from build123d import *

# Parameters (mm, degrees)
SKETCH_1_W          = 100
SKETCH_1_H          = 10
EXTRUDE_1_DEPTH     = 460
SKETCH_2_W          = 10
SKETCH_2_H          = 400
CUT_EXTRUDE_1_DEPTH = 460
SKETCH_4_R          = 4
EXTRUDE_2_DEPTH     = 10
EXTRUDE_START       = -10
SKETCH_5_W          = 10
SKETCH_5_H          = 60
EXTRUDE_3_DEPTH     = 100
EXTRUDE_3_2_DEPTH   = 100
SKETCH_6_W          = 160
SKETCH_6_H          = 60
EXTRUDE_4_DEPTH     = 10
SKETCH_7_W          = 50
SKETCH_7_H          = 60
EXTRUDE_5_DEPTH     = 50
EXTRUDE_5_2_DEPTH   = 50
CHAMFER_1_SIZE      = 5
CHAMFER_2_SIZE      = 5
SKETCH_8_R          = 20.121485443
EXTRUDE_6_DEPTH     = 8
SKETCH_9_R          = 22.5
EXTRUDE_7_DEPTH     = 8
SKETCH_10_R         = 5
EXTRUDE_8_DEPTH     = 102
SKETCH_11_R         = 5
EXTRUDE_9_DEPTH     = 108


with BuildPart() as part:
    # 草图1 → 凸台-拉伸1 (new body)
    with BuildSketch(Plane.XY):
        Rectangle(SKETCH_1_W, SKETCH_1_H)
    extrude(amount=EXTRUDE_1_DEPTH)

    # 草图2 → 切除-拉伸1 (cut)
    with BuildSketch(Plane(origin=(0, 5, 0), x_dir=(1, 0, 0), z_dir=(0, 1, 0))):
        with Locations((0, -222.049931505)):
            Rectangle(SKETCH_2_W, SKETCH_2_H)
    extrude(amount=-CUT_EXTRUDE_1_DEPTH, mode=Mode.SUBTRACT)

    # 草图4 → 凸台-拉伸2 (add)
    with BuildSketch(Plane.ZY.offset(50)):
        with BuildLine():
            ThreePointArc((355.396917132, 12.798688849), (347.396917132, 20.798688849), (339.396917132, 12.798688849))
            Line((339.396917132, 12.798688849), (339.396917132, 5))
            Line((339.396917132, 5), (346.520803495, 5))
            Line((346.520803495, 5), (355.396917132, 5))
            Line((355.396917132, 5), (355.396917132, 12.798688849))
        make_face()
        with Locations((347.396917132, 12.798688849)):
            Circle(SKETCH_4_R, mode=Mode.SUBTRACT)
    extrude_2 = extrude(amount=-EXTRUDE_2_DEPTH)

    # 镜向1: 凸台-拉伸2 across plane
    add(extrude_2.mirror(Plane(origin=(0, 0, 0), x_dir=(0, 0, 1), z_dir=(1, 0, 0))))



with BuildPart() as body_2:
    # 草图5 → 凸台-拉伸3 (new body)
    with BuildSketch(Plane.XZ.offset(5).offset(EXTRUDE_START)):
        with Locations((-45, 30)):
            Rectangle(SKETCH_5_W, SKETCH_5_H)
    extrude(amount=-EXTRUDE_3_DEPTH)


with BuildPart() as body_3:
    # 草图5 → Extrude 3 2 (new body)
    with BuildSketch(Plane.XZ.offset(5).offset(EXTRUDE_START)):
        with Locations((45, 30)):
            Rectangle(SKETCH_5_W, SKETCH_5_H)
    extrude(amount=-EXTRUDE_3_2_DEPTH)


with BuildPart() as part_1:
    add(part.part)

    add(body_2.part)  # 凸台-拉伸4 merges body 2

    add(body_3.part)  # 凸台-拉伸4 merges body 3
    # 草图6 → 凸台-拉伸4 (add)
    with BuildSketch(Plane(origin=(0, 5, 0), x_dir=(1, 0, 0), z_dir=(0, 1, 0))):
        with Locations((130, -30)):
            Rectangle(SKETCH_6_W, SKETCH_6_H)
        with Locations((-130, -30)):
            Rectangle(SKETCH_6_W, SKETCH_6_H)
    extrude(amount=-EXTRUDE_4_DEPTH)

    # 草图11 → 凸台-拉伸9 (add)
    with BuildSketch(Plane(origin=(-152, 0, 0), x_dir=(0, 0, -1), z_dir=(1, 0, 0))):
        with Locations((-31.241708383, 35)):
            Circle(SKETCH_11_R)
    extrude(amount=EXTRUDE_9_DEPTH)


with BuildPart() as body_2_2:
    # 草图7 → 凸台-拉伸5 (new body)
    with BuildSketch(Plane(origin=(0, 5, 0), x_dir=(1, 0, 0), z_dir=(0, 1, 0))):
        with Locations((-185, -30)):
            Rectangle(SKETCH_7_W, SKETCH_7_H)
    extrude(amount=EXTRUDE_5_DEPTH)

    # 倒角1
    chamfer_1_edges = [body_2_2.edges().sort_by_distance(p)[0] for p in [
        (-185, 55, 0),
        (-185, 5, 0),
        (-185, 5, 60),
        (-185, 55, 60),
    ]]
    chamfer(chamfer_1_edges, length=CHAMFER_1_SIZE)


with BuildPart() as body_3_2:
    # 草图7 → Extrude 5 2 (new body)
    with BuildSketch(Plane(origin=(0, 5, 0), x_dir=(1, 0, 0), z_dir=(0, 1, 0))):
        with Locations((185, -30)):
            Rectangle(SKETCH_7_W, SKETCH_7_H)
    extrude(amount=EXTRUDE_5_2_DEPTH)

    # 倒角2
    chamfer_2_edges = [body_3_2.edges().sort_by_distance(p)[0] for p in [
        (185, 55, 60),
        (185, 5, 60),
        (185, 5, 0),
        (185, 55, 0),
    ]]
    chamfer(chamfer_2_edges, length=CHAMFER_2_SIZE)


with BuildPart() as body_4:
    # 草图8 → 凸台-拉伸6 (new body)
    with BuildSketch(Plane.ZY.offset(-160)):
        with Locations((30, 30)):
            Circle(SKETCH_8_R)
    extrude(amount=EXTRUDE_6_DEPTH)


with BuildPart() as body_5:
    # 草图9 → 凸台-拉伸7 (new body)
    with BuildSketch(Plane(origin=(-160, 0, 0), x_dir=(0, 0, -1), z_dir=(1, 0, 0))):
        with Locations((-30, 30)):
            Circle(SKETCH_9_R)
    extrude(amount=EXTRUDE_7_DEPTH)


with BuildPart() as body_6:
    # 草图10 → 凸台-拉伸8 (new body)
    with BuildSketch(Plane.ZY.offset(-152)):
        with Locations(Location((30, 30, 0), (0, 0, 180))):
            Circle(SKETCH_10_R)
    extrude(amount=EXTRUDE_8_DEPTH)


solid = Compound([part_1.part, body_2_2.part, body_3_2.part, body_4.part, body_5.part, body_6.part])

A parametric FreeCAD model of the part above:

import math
import FreeCAD as App
import Part
import Sketcher
from FreeCAD import Vector


def edges_at(feature, points):
    """Names of the edges that pass closest to the given points."""
    edges = feature.Shape.Edges
    near = lambda p: min(range(len(edges)), key=lambda i: edges[i].distToShape(Part.Vertex(*p))[0])
    return sorted({f"Edge{near(p) + 1}" for p in points})

doc = App.newDocument("Part")
body = doc.addObject("PartDesign::Body", "Body")

sketch1 = body.newObject("Sketcher::SketchObject", "Sketch")
sketch1.AttachmentSupport = (doc.getObject("XY_Plane"), [""])
sketch1.MapMode = "FlatFace"
sketch1.addGeometry([
    Part.LineSegment(Vector(-50, 5, 0), Vector(-50, -5, 0)),
    Part.LineSegment(Vector(-50, -5, 0), Vector(50, -5, 0)),
    Part.LineSegment(Vector(50, -5, 0), Vector(50, 5, 0)),
    Part.LineSegment(Vector(50, 5, 0), Vector(-50, 5, 0)),
], False)
sketch1.addConstraint([
    Sketcher.Constraint("Coincident", 0, 2, 1, 1),
    Sketcher.Constraint("Coincident", 1, 2, 2, 1),
    Sketcher.Constraint("Coincident", 2, 2, 3, 1),
    Sketcher.Constraint("Coincident", 3, 2, 0, 1),
    Sketcher.Constraint("Vertical", 0),
    Sketcher.Constraint("Horizontal", 1),
    Sketcher.Constraint("Vertical", 2),
    Sketcher.Constraint("Horizontal", 3),
    Sketcher.Constraint("Symmetric", 0, 2, 2, 2, -1, 1),
    Sketcher.Constraint("DistanceX", 1, 1, 1, 2, 100.0),
    Sketcher.Constraint("DistanceY", 0, 2, 0, 1, 10.0),
])
pad1 = body.newObject("PartDesign::Pad", "Pad")
pad1.Profile = sketch1
pad1.Length = 460

sketch2 = body.newObject("Sketcher::SketchObject", "Sketch001")
sketch2.AttachmentSupport = (doc.getObject("XZ_Plane"), [""])
sketch2.MapMode = "FlatFace"
sketch2.AttachmentOffset = App.Placement(Vector(0, 0, -5), App.Rotation())
sketch2.addGeometry([
    Part.LineSegment(Vector(-5, 22.049932, 0), Vector(-5, 422.049932, 0)),
    Part.LineSegment(Vector(-5, 422.049932, 0), Vector(5, 422.049932, 0)),
    Part.LineSegment(Vector(5, 422.049932, 0), Vector(5, 22.049932, 0)),
    Part.LineSegment(Vector(5, 22.049932, 0), Vector(-5, 22.049932, 0)),
], False)
sketch2.addConstraint([
    Sketcher.Constraint("Coincident", 0, 2, 1, 1),
    Sketcher.Constraint("Coincident", 1, 2, 2, 1),
    Sketcher.Constraint("Coincident", 2, 2, 3, 1),
    Sketcher.Constraint("Coincident", 3, 2, 0, 1),
    Sketcher.Constraint("Vertical", 0),
    Sketcher.Constraint("Horizontal", 1),
    Sketcher.Constraint("Vertical", 2),
    Sketcher.Constraint("Horizontal", 3),
    Sketcher.Constraint("DistanceX", 1, 1, 1, 2, 10.0),
    Sketcher.Constraint("DistanceY", 0, 1, 0, 2, 400.0),
    Sketcher.Constraint("DistanceX", 0, 2, -1, 1, 5.0),
    Sketcher.Constraint("DistanceY", -1, 1, 0, 2, 422.049932),
])
pocket1 = body.newObject("PartDesign::Pocket", "Pocket")
pocket1.Profile = sketch2
pocket1.Length = 460
pocket1.Reversed = True

sketch3 = body.newObject("Sketcher::SketchObject", "Sketch002")
sketch3.AttachmentSupport = (doc.getObject("YZ_Plane"), [""])
sketch3.MapMode = "FlatFace"
sketch3.AttachmentOffset = App.Placement(Vector(0, 0, -50), App.Rotation())
sketch3.addGeometry([
    Part.ArcOfCircle(Part.Circle(Vector(12.798689, 347.396917, 0), Vector(0, 0, 1), 8), math.radians(-90), math.radians(90)),
    Part.LineSegment(Vector(12.798689, 339.396917, 0), Vector(5, 339.396917, 0)),
    Part.LineSegment(Vector(5, 339.396917, 0), Vector(5, 355.396917, 0)),
    Part.LineSegment(Vector(5, 355.396917, 0), Vector(12.798689, 355.396917, 0)),
    Part.Circle(Vector(12.798689, 347.396917, 0), Vector(0, 0, 1), 4),
], False)
sketch3.addConstraint([
    Sketcher.Constraint("Tangent", 0, 1, 1, 1),
    Sketcher.Constraint("Coincident", 1, 2, 2, 1),
    Sketcher.Constraint("Coincident", 2, 2, 3, 1),
    Sketcher.Constraint("Tangent", 3, 2, 0, 2),
    Sketcher.Constraint("Horizontal", 1),
    Sketcher.Constraint("Vertical", 2),
    Sketcher.Constraint("Horizontal", 3),
    Sketcher.Constraint("Coincident", 4, 3, 0, 3),
    Sketcher.Constraint("Diameter", 4, 8.0),
    Sketcher.Constraint("Radius", 0, 8.0),
    Sketcher.Constraint("DistanceX", -1, 1, 1, 2, 5.0),
    Sketcher.Constraint("DistanceX", 1, 2, 1, 1, 7.798689),
    Sketcher.Constraint("DistanceY", -1, 1, 0, 3, 347.396917),
])
pad2 = body.newObject("PartDesign::Pad", "Pad001")
pad2.Profile = sketch3
pad2.Length = 10
doc.recompute()

mirrored = body.newObject("PartDesign::Mirrored", "Mirrored")
mirrored.Originals = [pad2]
mirrored.MirrorPlane = (doc.getObject("YZ_Plane"), [""])
body.Tip = mirrored
body2 = doc.addObject("PartDesign::Body", "Body001")

sketch4 = body2.newObject("Sketcher::SketchObject", "Sketch003")
sketch4.AttachmentSupport = (doc.getObject("XZ_Plane001"), [""])
sketch4.MapMode = "FlatFace"
sketch4.AttachmentOffset = App.Placement(Vector(0, 0, -5), App.Rotation())
sketch4.addGeometry([
    Part.LineSegment(Vector(-50, 60, 0), Vector(-50, 0, 0)),
    Part.LineSegment(Vector(-50, 0, 0), Vector(-40, 0, 0)),
    Part.LineSegment(Vector(-40, 0, 0), Vector(-40, 60, 0)),
    Part.LineSegment(Vector(-40, 60, 0), Vector(-50, 60, 0)),
], False)
sketch4.addConstraint([
    Sketcher.Constraint("Coincident", 0, 2, 1, 1),
    Sketcher.Constraint("Coincident", 1, 2, 2, 1),
    Sketcher.Constraint("Coincident", 2, 2, 3, 1),
    Sketcher.Constraint("Coincident", 3, 2, 0, 1),
    Sketcher.Constraint("Vertical", 0),
    Sketcher.Constraint("Horizontal", 1),
    Sketcher.Constraint("Vertical", 2),
    Sketcher.Constraint("Horizontal", 3),
    Sketcher.Constraint("PointOnObject", 0, 2, -1),
    Sketcher.Constraint("DistanceX", 1, 1, 1, 2, 10.0),
    Sketcher.Constraint("DistanceY", 0, 2, 0, 1, 60.0),
    Sketcher.Constraint("DistanceX", 0, 2, -1, 1, 50.0),
])
pad3 = body2.newObject("PartDesign::Pad", "Pad002")
pad3.Profile = sketch4
pad3.Length = 100
pad3.Reversed = True
body3 = doc.addObject("PartDesign::Body", "Body002")

sketch5 = body3.newObject("Sketcher::SketchObject", "Sketch004")
sketch5.AttachmentSupport = (doc.getObject("XZ_Plane002"), [""])
sketch5.MapMode = "FlatFace"
sketch5.AttachmentOffset = App.Placement(Vector(0, 0, -5), App.Rotation())
sketch5.addGeometry([
    Part.LineSegment(Vector(40, 60, 0), Vector(40, 0, 0)),
    Part.LineSegment(Vector(40, 0, 0), Vector(50, 0, 0)),
    Part.LineSegment(Vector(50, 0, 0), Vector(50, 60, 0)),
    Part.LineSegment(Vector(50, 60, 0), Vector(40, 60, 0)),
], False)
sketch5.addConstraint([
    Sketcher.Constraint("Coincident", 0, 2, 1, 1),
    Sketcher.Constraint("Coincident", 1, 2, 2, 1),
    Sketcher.Constraint("Coincident", 2, 2, 3, 1),
    Sketcher.Constraint("Coincident", 3, 2, 0, 1),
    Sketcher.Constraint("Vertical", 0),
    Sketcher.Constraint("Horizontal", 1),
    Sketcher.Constraint("Vertical", 2),
    Sketcher.Constraint("Horizontal", 3),
    Sketcher.Constraint("PointOnObject", 0, 2, -1),
    Sketcher.Constraint("DistanceX", 1, 1, 1, 2, 10.0),
    Sketcher.Constraint("DistanceY", 0, 2, 0, 1, 60.0),
    Sketcher.Constraint("DistanceX", -1, 1, 0, 2, 40.0),
])
pad4 = body3.newObject("PartDesign::Pad", "Pad003")
pad4.Profile = sketch5
pad4.Length = 100
pad4.Reversed = True
doc.recompute()

boolean = body.newObject("PartDesign::Boolean", "Boolean")
boolean.Type = "Fuse"
boolean.addObjects([body2])
doc.recompute()

boolean2 = body.newObject("PartDesign::Boolean", "Boolean001")
boolean2.Type = "Fuse"
boolean2.addObjects([body3])

sketch6 = body.newObject("Sketcher::SketchObject", "Sketch005")
sketch6.AttachmentSupport = (doc.getObject("XZ_Plane"), [""])
sketch6.MapMode = "FlatFace"
sketch6.AttachmentOffset = App.Placement(Vector(0, 0, -5), App.Rotation())
sketch6.addGeometry([
    Part.LineSegment(Vector(50, 0, 0), Vector(50, 60, 0)),
    Part.LineSegment(Vector(50, 60, 0), Vector(210, 60, 0)),
    Part.LineSegment(Vector(210, 60, 0), Vector(210, 0, 0)),
    Part.LineSegment(Vector(210, 0, 0), Vector(50, 0, 0)),
    Part.LineSegment(Vector(-210, 0, 0), Vector(-210, 60, 0)),
    Part.LineSegment(Vector(-210, 60, 0), Vector(-50, 60, 0)),
    Part.LineSegment(Vector(-50, 60, 0), Vector(-50, 0, 0)),
    Part.LineSegment(Vector(-50, 0, 0), Vector(-210, 0, 0)),
], False)
sketch6.addConstraint([
    Sketcher.Constraint("Coincident", 0, 2, 1, 1),
    Sketcher.Constraint("Coincident", 1, 2, 2, 1),
    Sketcher.Constraint("Coincident", 2, 2, 3, 1),
    Sketcher.Constraint("Coincident", 3, 2, 0, 1),
    Sketcher.Constraint("Coincident", 4, 2, 5, 1),
    Sketcher.Constraint("Coincident", 5, 2, 6, 1),
    Sketcher.Constraint("Coincident", 6, 2, 7, 1),
    Sketcher.Constraint("Coincident", 7, 2, 4, 1),
    Sketcher.Constraint("Vertical", 0),
    Sketcher.Constraint("Horizontal", 1),
    Sketcher.Constraint("Vertical", 2),
    Sketcher.Constraint("Horizontal", 3),
    Sketcher.Constraint("Vertical", 4),
    Sketcher.Constraint("Horizontal", 5),
    Sketcher.Constraint("Vertical", 6),
    Sketcher.Constraint("Horizontal", 7),
    Sketcher.Constraint("Symmetric", 3, 2, 6, 2, -1, 1),
    Sketcher.Constraint("Symmetric", 1, 2, 4, 2, -2),
    Sketcher.Constraint("PointOnObject", 2, 2, -1),
    Sketcher.Constraint("DistanceX", 1, 1, 1, 2, 160.0),
    Sketcher.Constraint("DistanceY", 0, 1, 0, 2, 60.0),
    Sketcher.Constraint("DistanceX", -1, 1, 0, 2, 50.0),
])
pad5 = body.newObject("PartDesign::Pad", "Pad004")
pad5.Profile = sketch6
pad5.Length = 10

sketch7 = body.newObject("Sketcher::SketchObject", "Sketch006")
sketch7.AttachmentSupport = (doc.getObject("YZ_Plane"), [""])
sketch7.MapMode = "FlatFace"
sketch7.AttachmentOffset = App.Placement(Vector(0, 0, -152), App.Rotation())
sketch7.addGeometry(Part.Circle(Vector(35, 31.241708, 0), Vector(0, 0, 1), 5), False)
sketch7.addConstraint([
    Sketcher.Constraint("Diameter", 0, 10.0),
    Sketcher.Constraint("DistanceX", -1, 1, 0, 3, 35.0),
    Sketcher.Constraint("DistanceY", -1, 1, 0, 3, 31.241708),
])
pad6 = body.newObject("PartDesign::Pad", "Pad005")
pad6.Profile = sketch7
pad6.Length = 108
body4 = doc.addObject("PartDesign::Body", "Body003")

sketch8 = body4.newObject("Sketcher::SketchObject", "Sketch007")
sketch8.AttachmentSupport = (doc.getObject("XZ_Plane003"), [""])
sketch8.MapMode = "FlatFace"
sketch8.AttachmentOffset = App.Placement(Vector(0, 0, -5), App.Rotation())
sketch8.addGeometry([
    Part.LineSegment(Vector(-210, 0, 0), Vector(-210, 60, 0)),
    Part.LineSegment(Vector(-210, 60, 0), Vector(-160, 60, 0)),
    Part.LineSegment(Vector(-160, 60, 0), Vector(-160, 0, 0)),
    Part.LineSegment(Vector(-160, 0, 0), Vector(-210, 0, 0)),
], False)
sketch8.addConstraint([
    Sketcher.Constraint("Coincident", 0, 2, 1, 1),
    Sketcher.Constraint("Coincident", 1, 2, 2, 1),
    Sketcher.Constraint("Coincident", 2, 2, 3, 1),
    Sketcher.Constraint("Coincident", 3, 2, 0, 1),
    Sketcher.Constraint("Vertical", 0),
    Sketcher.Constraint("Horizontal", 1),
    Sketcher.Constraint("Vertical", 2),
    Sketcher.Constraint("Horizontal", 3),
    Sketcher.Constraint("PointOnObject", 2, 2, -1),
    Sketcher.Constraint("DistanceX", 1, 1, 1, 2, 50.0),
    Sketcher.Constraint("DistanceY", 0, 1, 0, 2, 60.0),
    Sketcher.Constraint("DistanceX", 0, 2, -1, 1, 210.0),
])
pad7 = body4.newObject("PartDesign::Pad", "Pad006")
pad7.Profile = sketch8
pad7.Length = 50
pad7.Reversed = True
doc.recompute()

chamfer = body4.newObject("PartDesign::Chamfer", "Chamfer")
chamfer.Base = (pad7, edges_at(pad7, [
    (-185, 55, 0),
    (-185, 5, 0),
    (-185, 5, 60),
    (-185, 55, 60),
]))
chamfer.Size = 5
body5 = doc.addObject("PartDesign::Body", "Body004")

sketch9 = body5.newObject("Sketcher::SketchObject", "Sketch008")
sketch9.AttachmentSupport = (doc.getObject("XZ_Plane004"), [""])
sketch9.MapMode = "FlatFace"
sketch9.AttachmentOffset = App.Placement(Vector(0, 0, -5), App.Rotation())
sketch9.addGeometry([
    Part.LineSegment(Vector(160, 0, 0), Vector(160, 60, 0)),
    Part.LineSegment(Vector(160, 60, 0), Vector(210, 60, 0)),
    Part.LineSegment(Vector(210, 60, 0), Vector(210, 0, 0)),
    Part.LineSegment(Vector(210, 0, 0), Vector(160, 0, 0)),
], False)
sketch9.addConstraint([
    Sketcher.Constraint("Coincident", 0, 2, 1, 1),
    Sketcher.Constraint("Coincident", 1, 2, 2, 1),
    Sketcher.Constraint("Coincident", 2, 2, 3, 1),
    Sketcher.Constraint("Coincident", 3, 2, 0, 1),
    Sketcher.Constraint("Vertical", 0),
    Sketcher.Constraint("Horizontal", 1),
    Sketcher.Constraint("Vertical", 2),
    Sketcher.Constraint("Horizontal", 3),
    Sketcher.Constraint("PointOnObject", 2, 2, -1),
    Sketcher.Constraint("DistanceX", 1, 1, 1, 2, 50.0),
    Sketcher.Constraint("DistanceY", 0, 1, 0, 2, 60.0),
    Sketcher.Constraint("DistanceX", -1, 1, 0, 2, 160.0),
])
pad8 = body5.newObject("PartDesign::Pad", "Pad007")
pad8.Profile = sketch9
pad8.Length = 50
pad8.Reversed = True
doc.recompute()

chamfer2 = body5.newObject("PartDesign::Chamfer", "Chamfer001")
chamfer2.Base = (pad8, edges_at(pad8, [
    (185, 55, 60),
    (185, 5, 60),
    (185, 5, 0),
    (185, 55, 0),
]))
chamfer2.Size = 5
body6 = doc.addObject("PartDesign::Body", "Body005")

sketch10 = body6.newObject("Sketcher::SketchObject", "Sketch009")
sketch10.AttachmentSupport = (doc.getObject("YZ_Plane005"), [""])
sketch10.MapMode = "FlatFace"
sketch10.AttachmentOffset = App.Placement(Vector(0, 0, 160), App.Rotation())
sketch10.addGeometry(Part.Circle(Vector(30, 30, 0), Vector(0, 0, 1), 20.121485), False)
sketch10.addConstraint([
    Sketcher.Constraint("DistanceX", -1, 1, 0, 3, 30.0),
    Sketcher.Constraint("DistanceY", -1, 1, 0, 3, 30.0),
    Sketcher.Constraint("Diameter", 0, 40.242971),
])
pad9 = body6.newObject("PartDesign::Pad", "Pad008")
pad9.Profile = sketch10
pad9.Length = 8
pad9.Reversed = True
body7 = doc.addObject("PartDesign::Body", "Body006")

sketch11 = body7.newObject("Sketcher::SketchObject", "Sketch010")
sketch11.AttachmentSupport = (doc.getObject("YZ_Plane006"), [""])
sketch11.MapMode = "FlatFace"
sketch11.AttachmentOffset = App.Placement(Vector(0, 0, -160), App.Rotation())
sketch11.addGeometry(Part.Circle(Vector(30, 30, 0), Vector(0, 0, 1), 22.5), False)
sketch11.addConstraint([
    Sketcher.Constraint("Diameter", 0, 45.0),
    Sketcher.Constraint("DistanceX", -1, 1, 0, 3, 30.0),
    Sketcher.Constraint("DistanceY", -1, 1, 0, 3, 30.0),
])
pad10 = body7.newObject("PartDesign::Pad", "Pad009")
pad10.Profile = sketch11
pad10.Length = 8
body8 = doc.addObject("PartDesign::Body", "Body007")

sketch12 = body8.newObject("Sketcher::SketchObject", "Sketch011")
sketch12.AttachmentSupport = (doc.getObject("YZ_Plane007"), [""])
sketch12.MapMode = "FlatFace"
sketch12.AttachmentOffset = App.Placement(Vector(0, 0, 152), App.Rotation())
sketch12.addGeometry(Part.Circle(Vector(30, 30, 0), Vector(0, 0, 1), 5), False)
sketch12.addConstraint([
    Sketcher.Constraint("Diameter", 0, 10.0),
    Sketcher.Constraint("DistanceX", -1, 1, 0, 3, 30.0),
    Sketcher.Constraint("DistanceY", -1, 1, 0, 3, 30.0),
])
pad11 = body8.newObject("PartDesign::Pad", "Pad010")
pad11.Profile = sketch12
pad11.Length = 102
pad11.Reversed = True

doc.recompute()
